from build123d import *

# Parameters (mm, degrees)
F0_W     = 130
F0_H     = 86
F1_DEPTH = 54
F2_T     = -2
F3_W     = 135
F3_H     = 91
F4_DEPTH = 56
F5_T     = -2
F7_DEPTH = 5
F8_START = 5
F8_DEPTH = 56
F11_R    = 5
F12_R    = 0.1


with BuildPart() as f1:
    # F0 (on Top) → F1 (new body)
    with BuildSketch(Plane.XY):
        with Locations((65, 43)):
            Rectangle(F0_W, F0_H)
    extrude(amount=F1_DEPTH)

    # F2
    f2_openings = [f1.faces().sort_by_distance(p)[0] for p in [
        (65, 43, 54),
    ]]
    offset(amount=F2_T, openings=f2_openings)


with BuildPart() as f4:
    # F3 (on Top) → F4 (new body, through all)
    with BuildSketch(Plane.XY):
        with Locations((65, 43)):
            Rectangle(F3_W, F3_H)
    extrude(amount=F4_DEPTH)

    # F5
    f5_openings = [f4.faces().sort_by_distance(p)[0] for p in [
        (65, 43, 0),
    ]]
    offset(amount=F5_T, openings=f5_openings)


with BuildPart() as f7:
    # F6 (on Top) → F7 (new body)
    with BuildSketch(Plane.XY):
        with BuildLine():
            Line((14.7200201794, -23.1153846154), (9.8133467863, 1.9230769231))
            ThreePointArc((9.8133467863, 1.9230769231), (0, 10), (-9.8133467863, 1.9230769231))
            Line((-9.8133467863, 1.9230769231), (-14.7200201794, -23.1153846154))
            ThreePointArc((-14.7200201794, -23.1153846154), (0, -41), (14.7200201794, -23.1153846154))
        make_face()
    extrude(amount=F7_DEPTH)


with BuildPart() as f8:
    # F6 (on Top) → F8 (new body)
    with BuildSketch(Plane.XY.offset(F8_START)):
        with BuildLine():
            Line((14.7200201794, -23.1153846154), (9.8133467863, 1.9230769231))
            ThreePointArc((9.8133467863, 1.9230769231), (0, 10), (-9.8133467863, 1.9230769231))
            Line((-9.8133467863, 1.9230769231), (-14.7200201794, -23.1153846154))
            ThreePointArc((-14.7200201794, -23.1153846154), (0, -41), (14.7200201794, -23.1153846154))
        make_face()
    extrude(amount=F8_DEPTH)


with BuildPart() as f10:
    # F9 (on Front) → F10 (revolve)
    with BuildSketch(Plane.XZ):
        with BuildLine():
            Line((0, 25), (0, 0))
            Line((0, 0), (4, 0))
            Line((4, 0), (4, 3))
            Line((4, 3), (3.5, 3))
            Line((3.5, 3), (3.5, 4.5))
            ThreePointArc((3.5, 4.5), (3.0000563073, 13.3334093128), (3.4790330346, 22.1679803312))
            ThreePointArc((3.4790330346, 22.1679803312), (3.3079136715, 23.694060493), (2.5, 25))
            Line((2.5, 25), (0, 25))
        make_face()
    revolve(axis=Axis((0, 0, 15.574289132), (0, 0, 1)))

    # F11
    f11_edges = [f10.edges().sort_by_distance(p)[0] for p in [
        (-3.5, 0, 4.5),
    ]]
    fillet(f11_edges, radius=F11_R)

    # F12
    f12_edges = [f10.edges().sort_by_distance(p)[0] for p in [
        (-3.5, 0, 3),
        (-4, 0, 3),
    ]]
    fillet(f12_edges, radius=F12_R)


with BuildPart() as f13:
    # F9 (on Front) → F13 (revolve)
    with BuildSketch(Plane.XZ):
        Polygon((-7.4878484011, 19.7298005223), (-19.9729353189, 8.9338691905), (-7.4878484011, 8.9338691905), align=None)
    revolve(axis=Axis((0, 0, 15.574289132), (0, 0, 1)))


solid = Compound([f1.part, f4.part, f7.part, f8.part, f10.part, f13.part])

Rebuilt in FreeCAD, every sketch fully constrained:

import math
import FreeCAD as App
import Part
import Sketcher

V = App.Vector


def edges_at(feature, points):
    """Names of the edges that pass closest to the given points."""
    edges = feature.Shape.Edges
    near = lambda p: min(range(len(edges)), key=lambda i: edges[i].distToShape(Part.Vertex(*p))[0])
    return sorted({f"Edge{near(p) + 1}" for p in points})


def faces_at(feature, points):
    """Names of the faces that lie closest to the given points."""
    faces = feature.Shape.Faces
    near = lambda p: min(range(len(faces)), key=lambda i: faces[i].distToShape(Part.Vertex(*p))[0])
    return sorted({f"Face{near(p) + 1}" for p in points})


def add_polygon(sketch, points):
    """Adds a closed chain of lines whose ends are joined by coincident constraints."""
    first, n = sketch.GeometryCount, len(points)
    for a, b in zip(points, points[1:] + points[:1]):
        sketch.addGeometry(Part.LineSegment(App.Vector(*a, 0), App.Vector(*b, 0)), False)
    for i in range(n):
        sketch.addConstraint(Sketcher.Constraint("Coincident", first + i, 2, first + (i + 1) % n, 1))

doc = App.newDocument("Part")
params = doc.addObject("Spreadsheet::Sheet", "Params")
for row, (alias, value) in enumerate([
    ("sketch1_width", "130 mm"),
    ("sketch1_height", "86 mm"),
    ("pad1_length", "54 mm"),
    ("thickness_wall", "2 mm"),
    ("sketch2_width", "135 mm"),
    ("sketch2_height", "91 mm"),
    ("pad2_length", "56 mm"),
    ("thickness2_wall", "2 mm"),
    ("sketch3_radius", "10 mm"),
    ("sketch3_radius2", "15 mm"),
    ("pad3_length", "5 mm"),
    ("sketch4_radius", "10 mm"),
    ("sketch4_radius2", "15 mm"),
    ("pad4_length", "56 mm"),
    ("sketch5_radius", "3.5 mm"),
    ("sketch5_width", "4 mm"),
    ("sketch5_height", "25 mm"),
    ("sketch5_height2", "3 mm"),
    ("sketch5_width2", "0.5 mm"),
    ("revolution_angle", "360 deg"),
    ("fillet_radius", "5 mm"),
    ("fillet2_radius", "0.1 mm"),
    ("revolution2_angle", "360 deg"),
], start=1):
    params.set(f"A{row}", alias)
    params.set(f"B{row}", "=" + value)
    params.setAlias(f"B{row}", alias)

body = doc.addObject("PartDesign::Body", "Body")

sketch1 = body.newObject("Sketcher::SketchObject", "Sketch")
sketch1.AttachmentSupport = (doc.getObject("XY_Plane"), [""])
sketch1.MapMode = "FlatFace"
add_polygon(sketch1, [(0, 86), (0, 0), (130, 0), (130, 86)])
sketch1.addConstraint(Sketcher.Constraint("Vertical", 0))
sketch1.addConstraint(Sketcher.Constraint("Horizontal", 1))
sketch1.addConstraint(Sketcher.Constraint("Vertical", 2))
sketch1.addConstraint(Sketcher.Constraint("Horizontal", 3))
sketch1.addConstraint(Sketcher.Constraint("Coincident", 0, 2, -1, 1))
sketch1.addConstraint(Sketcher.Constraint("DistanceX", 1, 1, 1, 2, 130.0))
sketch1.addConstraint(Sketcher.Constraint("DistanceY", 0, 2, 0, 1, 86.0))
sketch1.setExpression("Constraints[9]", "Params.sketch1_width")
sketch1.setExpression("Constraints[10]", "Params.sketch1_height")
pad1 = body.newObject("PartDesign::Pad", "Pad")
pad1.Profile = sketch1
pad1.setExpression("Length", "Params.pad1_length")
doc.recompute()

thickness = body.newObject("PartDesign::Thickness", "Thickness")
thickness.Base = (pad1, faces_at(pad1, [(65, 43, 54)]))
thickness.setExpression("Value", "Params.thickness_wall")
thickness.Reversed = True
thickness.Join = "Arc"
body2 = doc.addObject("PartDesign::Body", "Body001")

sketch2 = body2.newObject("Sketcher::SketchObject", "Sketch001")
sketch2.AttachmentSupport = (doc.getObject("XY_Plane001"), [""])
sketch2.MapMode = "FlatFace"
add_polygon(sketch2, [(-2, 88), (-2, -2), (132, -2), (132, 88)])
sketch2.addConstraint(Sketcher.Constraint("Vertical", 0))
sketch2.addConstraint(Sketcher.Constraint("Horizontal", 1))
sketch2.addConstraint(Sketcher.Constraint("Vertical", 2))
sketch2.addConstraint(Sketcher.Constraint("Horizontal", 3))
sketch2.addConstraint(Sketcher.Constraint("DistanceX", 1, 1, 1, 2, 135.0))
sketch2.addConstraint(Sketcher.Constraint("DistanceY", 0, 2, 0, 1, 91.0))
sketch2.addConstraint(Sketcher.Constraint("DistanceX", 0, 2, -1, 1, 2.5))
sketch2.addConstraint(Sketcher.Constraint("DistanceY", 0, 2, -1, 1, 2.5))
sketch2.setExpression("Constraints[8]", "Params.sketch2_width")
sketch2.setExpression("Constraints[9]", "Params.sketch2_height")
pad2 = body2.newObject("PartDesign::Pad", "Pad001")
pad2.Profile = sketch2
pad2.setExpression("Length", "Params.pad2_length")
doc.recompute()

thickness2 = body2.newObject("PartDesign::Thickness", "Thickness001")
thickness2.Base = (pad2, faces_at(pad2, [(65, 43, 0)]))
thickness2.setExpression("Value", "Params.thickness2_wall")
thickness2.Reversed = True
thickness2.Join = "Arc"
body3 = doc.addObject("PartDesign::Body", "Body002")

sketch3 = body3.newObject("Sketcher::SketchObject", "Sketch002")
sketch3.AttachmentSupport = (doc.getObject("XY_Plane002"), [""])
sketch3.MapMode = "FlatFace"
sketch3.addGeometry(Part.LineSegment(V(15, -23, 0), V(10, 2, 0)), False)
sketch3.addGeometry(Part.ArcOfCircle(Part.Circle(V(0, 0, 0), V(0, 0, 1), 10), math.radians(11), math.radians(169)), False)
sketch3.addGeometry(Part.LineSegment(V(-10, 2, 0), V(-15, -23, 0)), False)
sketch3.addGeometry(Part.ArcOfCircle(Part.Circle(V(0, -26, 0), V(0, 0, 1), 15), math.radians(169), math.radians(371)), False)
sketch3.addConstraint(Sketcher.Constraint("Tangent", 0, 2, 1, 1))
sketch3.addConstraint(Sketcher.Constraint("Tangent", 1, 2, 2, 1))
sketch3.addConstraint(Sketcher.Constraint("Tangent", 2, 2, 3, 1))
sketch3.addConstraint(Sketcher.Constraint("Tangent", 3, 2, 0, 1))
sketch3.addConstraint(Sketcher.Constraint("Coincident", 1, 3, -1, 1))
sketch3.addConstraint(Sketcher.Constraint("PointOnObject", 3, 3, -2))
sketch3.addConstraint(Sketcher.Constraint("Radius", 1, 10.0))
sketch3.addConstraint(Sketcher.Constraint("Radius", 3, 15.0))
sketch3.addConstraint(Sketcher.Constraint("DistanceY", 3, 3, -1, 1, 26.0))
sketch3.setExpression("Constraints[6]", "Params.sketch3_radius")
sketch3.setExpression("Constraints[7]", "Params.sketch3_radius2")
pad3 = body3.newObject("PartDesign::Pad", "Pad002")
pad3.Profile = sketch3
pad3.setExpression("Length", "Params.pad3_length")
body4 = doc.addObject("PartDesign::Body", "Body003")

sketch4 = body4.newObject("Sketcher::SketchObject", "Sketch003")
sketch4.AttachmentSupport = (doc.getObject("XY_Plane003"), [""])
sketch4.MapMode = "FlatFace"
sketch4.AttachmentOffset = App.Placement(V(0, 0, 5), App.Rotation())
sketch4.addGeometry(Part.LineSegment(V(15, -23, 0), V(10, 2, 0)), False)
sketch4.addGeometry(Part.ArcOfCircle(Part.Circle(V(0, 0, 0), V(0, 0, 1), 10), math.radians(11), math.radians(169)), False)
sketch4.addGeometry(Part.LineSegment(V(-10, 2, 0), V(-15, -23, 0)), False)
sketch4.addGeometry(Part.ArcOfCircle(Part.Circle(V(0, -26, 0), V(0, 0, 1), 15), math.radians(169), math.radians(371)), False)
sketch4.addConstraint(Sketcher.Constraint("Tangent", 0, 2, 1, 1))
sketch4.addConstraint(Sketcher.Constraint("Tangent", 1, 2, 2, 1))
sketch4.addConstraint(Sketcher.Constraint("Tangent", 2, 2, 3, 1))
sketch4.addConstraint(Sketcher.Constraint("Tangent", 3, 2, 0, 1))
sketch4.addConstraint(Sketcher.Constraint("Coincident", 1, 3, -1, 1))
sketch4.addConstraint(Sketcher.Constraint("PointOnObject", 3, 3, -2))
sketch4.addConstraint(Sketcher.Constraint("Radius", 1, 10.0))
sketch4.addConstraint(Sketcher.Constraint("Radius", 3, 15.0))
sketch4.addConstraint(Sketcher.Constraint("DistanceY", 3, 3, -1, 1, 26.0))
sketch4.setExpression("Constraints[6]", "Params.sketch4_radius")
sketch4.setExpression("Constraints[7]", "Params.sketch4_radius2")
pad4 = body4.newObject("PartDesign::Pad", "Pad003")
pad4.Profile = sketch4
pad4.setExpression("Length", "Params.pad4_length")
body5 = doc.addObject("PartDesign::Body", "Body004")

sketch5 = body5.newObject("Sketcher::SketchObject", "Sketch004")
sketch5.AttachmentSupport = (doc.getObject("XZ_Plane004"), [""])
sketch5.MapMode = "FlatFace"
sketch5.addGeometry(Part.LineSegment(V(0, 25, 0), V(0, 0, 0)), False)
sketch5.addGeometry(Part.LineSegment(V(0, 0, 0), V(4, 0, 0)), False)
sketch5.addGeometry(Part.LineSegment(V(4, 0, 0), V(4, 3, 0)), False)
sketch5.addGeometry(Part.LineSegment(V(4, 3, 0), V(3.5, 3, 0)), False)
sketch5.addGeometry(Part.LineSegment(V(3.5, 3, 0), V(3.5, 4.5, 0)), False)
sketch5.addGeometry(Part.ArcOfCircle(Part.Circle(V(83, 13.4, 0), V(0, 0, 1), 80), math.radians(173.73), math.radians(186.41)), False)
sketch5.addGeometry(Part.ArcOfCircle(Part.Circle(V(0, 22.6, 0), V(0, 0, 1), 3.5), math.radians(-6), math.radians(44)), False)
sketch5.addGeometry(Part.LineSegment(V(2.5, 25, 0), V(0, 25, 0)), False)
sketch5.addConstraint(Sketcher.Constraint("Coincident", 0, 2, 1, 1))
sketch5.addConstraint(Sketcher.Constraint("Coincident", 1, 2, 2, 1))
sketch5.addConstraint(Sketcher.Constraint("Coincident", 2, 2, 3, 1))
sketch5.addConstraint(Sketcher.Constraint("Coincident", 3, 2, 4, 1))
sketch5.addConstraint(Sketcher.Constraint("Coincident", 4, 2, 5, 2))
sketch5.addConstraint(Sketcher.Constraint("Tangent", 5, 1, 6, 1))
sketch5.addConstraint(Sketcher.Constraint("Coincident", 6, 2, 7, 1))
sketch5.addConstraint(Sketcher.Constraint("Coincident", 7, 2, 0, 1))
sketch5.addConstraint(Sketcher.Constraint("Vertical", 0))
sketch5.addConstraint(Sketcher.Constraint("Horizontal", 1))
sketch5.addConstraint(Sketcher.Constraint("Vertical", 2))
sketch5.addConstraint(Sketcher.Constraint("Horizontal", 3))
sketch5.addConstraint(Sketcher.Constraint("Vertical", 4))
sketch5.addConstraint(Sketcher.Constraint("Horizontal", 7))
sketch5.addConstraint(Sketcher.Constraint("Coincident", 0, 2, -1, 1))
sketch5.addConstraint(Sketcher.Constraint("PointOnObject", 6, 3, -2))
sketch5.addConstraint(Sketcher.Constraint("Radius", 6, 3.5))
sketch5.addConstraint(Sketcher.Constraint("DistanceX", 1, 1, 1, 2, 4.0))
sketch5.addConstraint(Sketcher.Constraint("DistanceY", 0, 2, 0, 1, 25.0))
sketch5.addConstraint(Sketcher.Constraint("DistanceY", 2, 1, 2, 2, 3.0))
sketch5.addConstraint(Sketcher.Constraint("DistanceX", 3, 2, 3, 1, 0.5))
sketch5.addConstraint(Sketcher.Constraint("DistanceX", 7, 2, 7, 1, 2.5))
sketch5.addConstraint(Sketcher.Constraint("DistanceY", 4, 1, 4, 2, 1.5))
sketch5.addConstraint(Sketcher.Constraint("Radius", 5, 79.964629))
sketch5.setExpression("Constraints[16]", "Params.sketch5_radius")
sketch5.setExpression("Constraints[17]", "Params.sketch5_width")
sketch5.setExpression("Constraints[18]", "Params.sketch5_height")
sketch5.setExpression("Constraints[19]", "Params.sketch5_height2")
sketch5.setExpression("Constraints[20]", "Params.sketch5_width2")
revolution = body5.newObject("PartDesign::Revolution", "Revolution")
revolution.Profile = sketch5
revolution.ReferenceAxis = (sketch5, ["V_Axis"])
revolution.setExpression("Angle", "Params.revolution_angle")
doc.recompute()

fillet = body5.newObject("PartDesign::Fillet", "Fillet")
fillet.Base = (revolution, edges_at(revolution, [(-3.5, 0, 4.5)]))
fillet.setExpression("Radius", "Params.fillet_radius")
doc.recompute()

fillet2 = body5.newObject("PartDesign::Fillet", "Fillet001")
fillet2.Base = (fillet, edges_at(fillet, [(-3.5, 0, 3), (-4, 0, 3)]))
fillet2.setExpression("Radius", "Params.fillet2_radius")
body6 = doc.addObject("PartDesign::Body", "Body005")

sketch6 = body6.newObject("Sketcher::SketchObject", "Sketch005")
sketch6.AttachmentSupport = (doc.getObject("XZ_Plane005"), [""])
sketch6.MapMode = "FlatFace"
add_polygon(sketch6, [(-7, 20), (-20, 9), (-7, 9)])
sketch6.addConstraint(Sketcher.Constraint("Horizontal", 1))
sketch6.addConstraint(Sketcher.Constraint("Vertical", 2))
sketch6.addConstraint(Sketcher.Constraint("DistanceY", 2, 1, 2, 2, 10.795931))
sketch6.addConstraint(Sketcher.Constraint("DistanceY", -1, 1, 2, 2, 19.729801))
sketch6.addConstraint(Sketcher.Constraint("Distance", 0, 16.505439))
sketch6.addConstraint(Sketcher.Constraint("DistanceX", 1, 2, -1, 1, 7.487848))
revolution2 = body6.newObject("PartDesign::Revolution", "Revolution001")
revolution2.Profile = sketch6
revolution2.ReferenceAxis = (sketch6, ["V_Axis"])
revolution2.setExpression("Angle", "Params.revolution2_angle")

doc.recompute()
